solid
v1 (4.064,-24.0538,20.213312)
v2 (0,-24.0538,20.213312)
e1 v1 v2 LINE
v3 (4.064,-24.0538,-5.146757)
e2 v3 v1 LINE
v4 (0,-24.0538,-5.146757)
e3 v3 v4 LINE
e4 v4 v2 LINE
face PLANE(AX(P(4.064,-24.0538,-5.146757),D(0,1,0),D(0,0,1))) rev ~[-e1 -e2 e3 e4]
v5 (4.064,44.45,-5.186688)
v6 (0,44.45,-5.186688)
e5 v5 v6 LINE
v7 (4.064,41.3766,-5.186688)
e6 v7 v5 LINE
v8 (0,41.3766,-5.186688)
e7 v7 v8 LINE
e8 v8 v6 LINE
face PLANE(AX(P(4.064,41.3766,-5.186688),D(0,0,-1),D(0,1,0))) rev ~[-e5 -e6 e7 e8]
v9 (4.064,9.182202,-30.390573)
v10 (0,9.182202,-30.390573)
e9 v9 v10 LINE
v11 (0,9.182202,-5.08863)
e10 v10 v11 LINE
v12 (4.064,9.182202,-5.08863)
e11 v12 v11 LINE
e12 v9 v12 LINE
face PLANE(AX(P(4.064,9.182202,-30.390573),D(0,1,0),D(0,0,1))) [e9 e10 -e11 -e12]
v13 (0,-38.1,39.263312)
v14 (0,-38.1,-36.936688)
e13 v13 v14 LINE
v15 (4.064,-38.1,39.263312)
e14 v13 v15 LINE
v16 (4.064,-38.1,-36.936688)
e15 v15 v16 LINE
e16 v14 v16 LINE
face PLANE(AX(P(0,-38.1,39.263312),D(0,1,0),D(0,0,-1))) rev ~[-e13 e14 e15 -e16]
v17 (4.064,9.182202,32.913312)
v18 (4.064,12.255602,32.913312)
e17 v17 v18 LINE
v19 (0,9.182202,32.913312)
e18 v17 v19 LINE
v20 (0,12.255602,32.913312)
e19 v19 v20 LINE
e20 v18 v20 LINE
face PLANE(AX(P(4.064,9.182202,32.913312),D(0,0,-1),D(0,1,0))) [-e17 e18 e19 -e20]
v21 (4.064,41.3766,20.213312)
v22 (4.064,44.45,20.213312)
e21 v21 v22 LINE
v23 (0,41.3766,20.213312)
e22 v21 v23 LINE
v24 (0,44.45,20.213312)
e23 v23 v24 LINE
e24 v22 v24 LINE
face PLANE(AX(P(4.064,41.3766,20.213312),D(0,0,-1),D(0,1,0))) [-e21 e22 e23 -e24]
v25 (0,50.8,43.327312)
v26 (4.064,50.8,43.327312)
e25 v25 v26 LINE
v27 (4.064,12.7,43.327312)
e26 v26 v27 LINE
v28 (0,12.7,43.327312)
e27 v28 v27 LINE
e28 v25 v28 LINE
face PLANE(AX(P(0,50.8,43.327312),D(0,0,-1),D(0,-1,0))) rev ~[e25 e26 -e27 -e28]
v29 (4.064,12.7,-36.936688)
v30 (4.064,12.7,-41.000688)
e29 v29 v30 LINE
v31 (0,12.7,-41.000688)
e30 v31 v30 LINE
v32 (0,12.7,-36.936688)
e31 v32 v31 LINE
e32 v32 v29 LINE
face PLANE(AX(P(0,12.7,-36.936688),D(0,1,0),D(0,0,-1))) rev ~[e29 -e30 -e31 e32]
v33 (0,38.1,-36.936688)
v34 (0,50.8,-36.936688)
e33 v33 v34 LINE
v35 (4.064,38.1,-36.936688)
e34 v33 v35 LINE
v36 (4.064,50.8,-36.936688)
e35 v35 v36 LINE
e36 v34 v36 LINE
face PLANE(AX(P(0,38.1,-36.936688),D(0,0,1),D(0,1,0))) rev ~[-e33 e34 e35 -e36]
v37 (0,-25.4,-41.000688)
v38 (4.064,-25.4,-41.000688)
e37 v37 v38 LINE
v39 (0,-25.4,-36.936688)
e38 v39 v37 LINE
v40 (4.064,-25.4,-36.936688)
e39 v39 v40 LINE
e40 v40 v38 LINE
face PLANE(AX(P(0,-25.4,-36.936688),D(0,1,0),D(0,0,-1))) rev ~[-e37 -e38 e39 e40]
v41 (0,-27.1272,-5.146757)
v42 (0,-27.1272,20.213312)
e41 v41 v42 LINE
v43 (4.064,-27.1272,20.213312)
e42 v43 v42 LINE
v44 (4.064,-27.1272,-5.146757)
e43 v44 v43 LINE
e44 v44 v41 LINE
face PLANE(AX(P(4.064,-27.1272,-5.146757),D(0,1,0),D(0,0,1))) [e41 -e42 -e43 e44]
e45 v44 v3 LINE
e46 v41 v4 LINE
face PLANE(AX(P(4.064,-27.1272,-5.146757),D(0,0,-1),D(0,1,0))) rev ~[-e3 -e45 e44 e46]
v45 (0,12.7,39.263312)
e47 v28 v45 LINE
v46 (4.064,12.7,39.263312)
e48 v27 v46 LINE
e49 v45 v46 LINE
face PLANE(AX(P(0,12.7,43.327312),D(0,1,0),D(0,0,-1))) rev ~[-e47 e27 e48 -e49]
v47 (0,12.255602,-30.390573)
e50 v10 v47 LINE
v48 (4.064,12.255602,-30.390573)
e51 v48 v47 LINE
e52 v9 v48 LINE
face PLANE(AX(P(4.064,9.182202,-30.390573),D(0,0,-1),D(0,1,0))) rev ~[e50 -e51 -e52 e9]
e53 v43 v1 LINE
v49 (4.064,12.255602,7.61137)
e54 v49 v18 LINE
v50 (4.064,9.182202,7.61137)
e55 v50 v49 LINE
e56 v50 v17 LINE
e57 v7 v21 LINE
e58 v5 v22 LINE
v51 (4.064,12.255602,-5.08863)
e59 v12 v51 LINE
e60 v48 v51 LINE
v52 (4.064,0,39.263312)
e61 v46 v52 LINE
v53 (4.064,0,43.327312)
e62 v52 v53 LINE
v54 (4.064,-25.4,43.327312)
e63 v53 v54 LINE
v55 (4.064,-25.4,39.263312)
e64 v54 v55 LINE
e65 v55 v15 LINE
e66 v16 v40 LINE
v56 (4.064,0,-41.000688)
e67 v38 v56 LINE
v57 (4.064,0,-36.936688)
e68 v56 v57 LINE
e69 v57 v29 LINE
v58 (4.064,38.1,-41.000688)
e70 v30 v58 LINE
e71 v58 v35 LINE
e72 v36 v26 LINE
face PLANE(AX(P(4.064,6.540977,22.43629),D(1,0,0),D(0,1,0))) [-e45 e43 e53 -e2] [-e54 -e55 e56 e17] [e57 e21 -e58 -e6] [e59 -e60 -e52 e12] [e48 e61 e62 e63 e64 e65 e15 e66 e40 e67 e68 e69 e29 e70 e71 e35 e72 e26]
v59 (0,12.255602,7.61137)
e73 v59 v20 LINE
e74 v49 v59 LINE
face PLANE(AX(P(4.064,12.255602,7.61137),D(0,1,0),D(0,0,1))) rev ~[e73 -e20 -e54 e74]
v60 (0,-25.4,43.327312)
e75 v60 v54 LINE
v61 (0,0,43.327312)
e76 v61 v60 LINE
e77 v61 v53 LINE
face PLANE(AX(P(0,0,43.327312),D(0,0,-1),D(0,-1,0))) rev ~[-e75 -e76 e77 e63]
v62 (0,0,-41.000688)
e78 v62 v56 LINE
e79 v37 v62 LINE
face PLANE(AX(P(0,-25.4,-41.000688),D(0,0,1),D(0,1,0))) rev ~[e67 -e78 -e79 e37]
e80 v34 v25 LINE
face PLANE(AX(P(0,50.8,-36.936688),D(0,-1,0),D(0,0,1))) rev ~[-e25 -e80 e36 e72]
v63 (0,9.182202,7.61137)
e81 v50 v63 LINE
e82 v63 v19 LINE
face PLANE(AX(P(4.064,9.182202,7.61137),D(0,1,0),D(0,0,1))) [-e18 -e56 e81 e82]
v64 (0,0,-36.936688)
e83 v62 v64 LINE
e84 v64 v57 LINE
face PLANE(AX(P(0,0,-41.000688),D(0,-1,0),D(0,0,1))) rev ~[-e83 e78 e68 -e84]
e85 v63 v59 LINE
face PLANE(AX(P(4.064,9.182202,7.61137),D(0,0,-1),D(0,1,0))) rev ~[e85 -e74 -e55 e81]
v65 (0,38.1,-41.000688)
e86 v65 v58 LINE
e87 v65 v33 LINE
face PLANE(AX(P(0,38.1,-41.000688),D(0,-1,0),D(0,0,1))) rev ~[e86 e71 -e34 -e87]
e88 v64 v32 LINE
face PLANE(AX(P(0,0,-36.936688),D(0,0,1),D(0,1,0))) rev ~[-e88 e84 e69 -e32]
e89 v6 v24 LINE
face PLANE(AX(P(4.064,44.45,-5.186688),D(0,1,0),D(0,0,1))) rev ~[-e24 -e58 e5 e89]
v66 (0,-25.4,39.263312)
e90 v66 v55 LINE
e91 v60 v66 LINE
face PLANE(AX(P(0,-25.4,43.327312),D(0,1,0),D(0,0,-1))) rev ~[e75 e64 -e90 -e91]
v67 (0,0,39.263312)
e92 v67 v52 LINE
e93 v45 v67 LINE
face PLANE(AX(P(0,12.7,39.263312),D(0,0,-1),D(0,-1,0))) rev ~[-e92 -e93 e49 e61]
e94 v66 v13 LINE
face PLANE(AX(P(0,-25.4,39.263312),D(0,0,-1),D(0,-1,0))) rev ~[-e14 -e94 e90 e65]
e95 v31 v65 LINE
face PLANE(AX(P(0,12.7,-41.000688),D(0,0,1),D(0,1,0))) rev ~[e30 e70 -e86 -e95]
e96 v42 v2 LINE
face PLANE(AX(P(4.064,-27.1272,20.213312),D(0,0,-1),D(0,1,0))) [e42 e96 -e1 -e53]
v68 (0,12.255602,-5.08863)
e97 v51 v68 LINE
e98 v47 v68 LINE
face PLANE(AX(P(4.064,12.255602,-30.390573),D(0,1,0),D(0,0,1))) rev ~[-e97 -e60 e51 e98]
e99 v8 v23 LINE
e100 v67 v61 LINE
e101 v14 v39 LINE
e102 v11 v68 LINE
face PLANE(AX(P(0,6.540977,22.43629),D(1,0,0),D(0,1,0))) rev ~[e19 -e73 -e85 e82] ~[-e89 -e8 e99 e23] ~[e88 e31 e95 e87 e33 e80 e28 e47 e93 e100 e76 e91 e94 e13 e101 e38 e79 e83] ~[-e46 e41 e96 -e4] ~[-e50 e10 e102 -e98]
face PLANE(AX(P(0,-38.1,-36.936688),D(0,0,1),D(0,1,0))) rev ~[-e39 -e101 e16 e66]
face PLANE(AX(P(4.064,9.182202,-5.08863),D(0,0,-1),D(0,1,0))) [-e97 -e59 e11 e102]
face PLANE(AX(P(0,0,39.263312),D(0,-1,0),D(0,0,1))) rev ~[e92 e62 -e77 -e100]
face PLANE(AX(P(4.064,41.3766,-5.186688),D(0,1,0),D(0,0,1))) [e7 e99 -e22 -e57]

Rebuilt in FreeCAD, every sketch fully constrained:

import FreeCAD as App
import Part
import Sketcher
from FreeCAD import Vector
Q = App.Units.Quantity

doc = App.newDocument("Part")
body = doc.addObject("PartDesign::Body", "Body")

sketch1 = body.newObject("Sketcher::SketchObject", "Sketch")
sketch1.AttachmentSupport = (doc.getObject("YZ_Plane"), [""])
sketch1.MapMode = "FlatFace"
sketch1.addGeometry([
    Part.LineSegment(Vector(50.8, 43.327312, 0), Vector(12.7, 43.327312, 0)),
    Part.LineSegment(Vector(12.7, 43.327312, 0), Vector(12.7, 39.263312, 0)),
    Part.LineSegment(Vector(12.7, 39.263312, 0), Vector(0, 39.263312, 0)),
    Part.LineSegment(Vector(0, 39.263312, 0), Vector(0, 43.327312, 0)),
    Part.LineSegment(Vector(0, 43.327312, 0), Vector(-25.4, 43.327312, 0)),
    Part.LineSegment(Vector(-25.4, 43.327312, 0), Vector(-25.4, 39.263312, 0)),
    Part.LineSegment(Vector(-25.4, 39.263312, 0), Vector(-38.1, 39.263312, 0)),
    Part.LineSegment(Vector(-38.1, 39.263312, 0), Vector(-38.1, -36.936688, 0)),
    Part.LineSegment(Vector(-38.1, -36.936688, 0), Vector(-25.4, -36.936688, 0)),
    Part.LineSegment(Vector(-25.4, -36.936688, 0), Vector(-25.4, -41.000688, 0)),
    Part.LineSegment(Vector(-25.4, -41.000688, 0), Vector(0, -41.000688, 0)),
    Part.LineSegment(Vector(0, -41.000688, 0), Vector(0, -36.936688, 0)),
    Part.LineSegment(Vector(0, -36.936688, 0), Vector(12.7, -36.936688, 0)),
    Part.LineSegment(Vector(12.7, -36.936688, 0), Vector(12.7, -41.000688, 0)),
    Part.LineSegment(Vector(12.7, -41.000688, 0), Vector(38.1, -41.000688, 0)),
    Part.LineSegment(Vector(38.1, -41.000688, 0), Vector(38.1, -36.936688, 0)),
    Part.LineSegment(Vector(38.1, -36.936688, 0), Vector(50.8, -36.936688, 0)),
    Part.LineSegment(Vector(50.8, -36.936688, 0), Vector(50.8, 43.327312, 0)),
], False)
sketch1.addConstraint([
    Sketcher.Constraint("Coincident", 0, 2, 1, 1),
    Sketcher.Constraint("Coincident", 1, 2, 2, 1),
    Sketcher.Constraint("Coincident", 2, 2, 3, 1),
    Sketcher.Constraint("Coincident", 3, 2, 4, 1),
    Sketcher.Constraint("Coincident", 4, 2, 5, 1),
    Sketcher.Constraint("Coincident", 5, 2, 6, 1),
    Sketcher.Constraint("Coincident", 6, 2, 7, 1),
    Sketcher.Constraint("Coincident", 7, 2, 8, 1),
    Sketcher.Constraint("Coincident", 8, 2, 9, 1),
    Sketcher.Constraint("Coincident", 9, 2, 10, 1),
    Sketcher.Constraint("Coincident", 10, 2, 11, 1),
    Sketcher.Constraint("Coincident", 11, 2, 12, 1),
    Sketcher.Constraint("Coincident", 12, 2, 13, 1),
    Sketcher.Constraint("Coincident", 13, 2, 14, 1),
    Sketcher.Constraint("Coincident", 14, 2, 15, 1),
    Sketcher.Constraint("Coincident", 15, 2, 16, 1),
    Sketcher.Constraint("Coincident", 16, 2, 17, 1),
    Sketcher.Constraint("Coincident", 17, 2, 0, 1),
    Sketcher.Constraint("Horizontal", 0),
    Sketcher.Constraint("Vertical", 1),
    Sketcher.Constraint("Horizontal", 2),
    Sketcher.Constraint("Vertical", 3),
    Sketcher.Constraint("Horizontal", 4),
    Sketcher.Constraint("Vertical", 5),
    Sketcher.Constraint("Horizontal", 6),
    Sketcher.Constraint("Vertical", 7),
    Sketcher.Constraint("Horizontal", 8),
    Sketcher.Constraint("Vertical", 9),
    Sketcher.Constraint("Horizontal", 10),
    Sketcher.Constraint("Vertical", 11),
    Sketcher.Constraint("Horizontal", 12),
    Sketcher.Constraint("Vertical", 13),
    Sketcher.Constraint("Horizontal", 14),
    Sketcher.Constraint("Vertical", 15),
    Sketcher.Constraint("Horizontal", 16),
    Sketcher.Constraint("Vertical", 17),
    Sketcher.Constraint("Symmetric", 7, 2, 15, 2, -2),
    Sketcher.Constraint("PointOnObject", 2, 2, -2),
    Sketcher.Constraint("PointOnObject", 10, 2, -2),
    Sketcher.Constraint("Horizontal", 0, 2, 3, 2),
    Sketcher.Constraint("Horizontal", 2, 2, 5, 2),
    Sketcher.Constraint("Horizontal", 8, 2, 11, 2),
    Sketcher.Constraint("Horizontal", 10, 2, 13, 2),
    Sketcher.Constraint("Vertical", 5, 2, 8, 2),
    Sketcher.Constraint("Vertical", 1, 2, 12, 2),
    Sketcher.Constraint("Equal", 2, 6),
    Sketcher.Constraint("Equal", 12, 16),
    Sketcher.Constraint("Equal", 5, 9),
    Sketcher.Constraint("DistanceX", 4, 2, 4, 1, Q("1 in")),
    Sketcher.Constraint("DistanceY", 7, 2, 7, 1, Q("3 in")),
    Sketcher.Constraint("DistanceX", 0, 2, 0, 1, Q("1.5 in")),
    Sketcher.Constraint("DistanceY", 1, 2, 1, 1, Q("0.16 in")),
    Sketcher.Constraint("DistanceY", -1, 1, 0, 2, 43.327312),
])
pad1 = body.newObject("PartDesign::Pad", "Pad")
pad1.Profile = sketch1
pad1.Length = Q("0.16 in")

sketch2 = body.newObject("Sketcher::SketchObject", "Sketch001")
sketch2.AttachmentSupport = (doc.getObject("YZ_Plane"), [""])
sketch2.MapMode = "FlatFace"
sketch2.AttachmentOffset = App.Placement(Vector(0, 0, 0.16 * 25.4), App.Rotation())
sketch2.addGeometry([
    Part.LineSegment(Vector(-27.1272, 20.213312, 0), Vector(-27.1272, -5.146757, 0)),
    Part.LineSegment(Vector(-27.1272, -5.146757, 0), Vector(-24.0538, -5.146757, 0)),
    Part.LineSegment(Vector(-24.0538, -5.146757, 0), Vector(-24.0538, 20.213312, 0)),
    Part.LineSegment(Vector(-24.0538, 20.213312, 0), Vector(-27.1272, 20.213312, 0)),
    Part.LineSegment(Vector(9.182202, 32.913312, 0), Vector(9.182202, 7.61137, 0)),
    Part.LineSegment(Vector(9.182202, 7.61137, 0), Vector(12.255602, 7.61137, 0)),
    Part.LineSegment(Vector(12.255602, 7.61137, 0), Vector(12.255602, 32.913312, 0)),
    Part.LineSegment(Vector(12.255602, 32.913312, 0), Vector(9.182202, 32.913312, 0)),
    Part.LineSegment(Vector(9.182202, -5.08863, 0), Vector(9.182202, -30.390573, 0)),
    Part.LineSegment(Vector(9.182202, -30.390573, 0), Vector(12.255602, -30.390573, 0)),
    Part.LineSegment(Vector(12.255602, -30.390573, 0), Vector(12.255602, -5.08863, 0)),
    Part.LineSegment(Vector(12.255602, -5.08863, 0), Vector(9.182202, -5.08863, 0)),
    Part.LineSegment(Vector(41.3766, 20.213312, 0), Vector(41.3766, -5.186688, 0)),
    Part.LineSegment(Vector(41.3766, -5.186688, 0), Vector(44.45, -5.186688, 0)),
    Part.LineSegment(Vector(44.45, -5.186688, 0), Vector(44.45, 20.213312, 0)),
    Part.LineSegment(Vector(44.45, 20.213312, 0), Vector(41.3766, 20.213312, 0)),
], False)
sketch2.addConstraint([
    Sketcher.Constraint("Coincident", 0, 2, 1, 1),
    Sketcher.Constraint("Coincident", 1, 2, 2, 1),
    Sketcher.Constraint("Coincident", 2, 2, 3, 1),
    Sketcher.Constraint("Coincident", 3, 2, 0, 1),
    Sketcher.Constraint("Coincident", 4, 2, 5, 1),
    Sketcher.Constraint("Coincident", 5, 2, 6, 1),
    Sketcher.Constraint("Coincident", 6, 2, 7, 1),
    Sketcher.Constraint("Coincident", 7, 2, 4, 1),
    Sketcher.Constraint("Coincident", 8, 2, 9, 1),
    Sketcher.Constraint("Coincident", 9, 2, 10, 1),
    Sketcher.Constraint("Coincident", 10, 2, 11, 1),
    Sketcher.Constraint("Coincident", 11, 2, 8, 1),
    Sketcher.Constraint("Coincident", 12, 2, 13, 1),
    Sketcher.Constraint("Coincident", 13, 2, 14, 1),
    Sketcher.Constraint("Coincident", 14, 2, 15, 1),
    Sketcher.Constraint("Coincident", 15, 2, 12, 1),
    Sketcher.Constraint("Vertical", 0),
    Sketcher.Constraint("Horizontal", 1),
    Sketcher.Constraint("Vertical", 2),
    Sketcher.Constraint("Horizontal", 3),
    Sketcher.Constraint("Vertical", 4),
    Sketcher.Constraint("Horizontal", 5),
    Sketcher.Constraint("Vertical", 6),
    Sketcher.Constraint("Horizontal", 7),
    Sketcher.Constraint("Vertical", 8),
    Sketcher.Constraint("Horizontal", 9),
    Sketcher.Constraint("Vertical", 10),
    Sketcher.Constraint("Horizontal", 11),
    Sketcher.Constraint("Vertical", 12),
    Sketcher.Constraint("Horizontal", 13),
    Sketcher.Constraint("Vertical", 14),
    Sketcher.Constraint("Horizontal", 15),
    Sketcher.Constraint("Horizontal", 3, 2, 14, 2),
    Sketcher.Constraint("Vertical", 7, 2, 8, 2),
    Sketcher.Constraint("Vertical", 6, 2, 9, 2),
    Sketcher.Constraint("Equal", 3, 5),
    Sketcher.Constraint("Equal", 11, 13),
    Sketcher.Constraint("Equal", 6, 8),
    Sketcher.Constraint("DistanceY", 12, 2, 12, 1, Q("1 in")),
    Sketcher.Constraint("DistanceY", 2, 2, 6, 2, Q("0.5 in")),
    Sketcher.Constraint("DistanceY", 10, 2, 5, 2, Q("0.5 in")),
    Sketcher.Constraint("DistanceX", 1, 1, 1, 2, Q("0.121 in")),
    Sketcher.Constraint("DistanceX", -1, 1, 13, 2, Q("1.75 in")),
    Sketcher.Constraint("DistanceX", 0, 2, -1, 1, Q("1.068 in")),
    Sketcher.Constraint("DistanceY", 0, 2, 0, 1, 25.360069),
    Sketcher.Constraint("DistanceX", -1, 1, 4, 2, 9.182202),
    Sketcher.Constraint("DistanceY", 4, 2, 4, 1, 25.301943),
    Sketcher.Constraint("DistanceY", -1, 1, 4, 2, 7.61137),
])
pocket1 = body.newObject("PartDesign::Pocket", "Pocket")
pocket1.Profile = sketch2
pocket1.Length = Q("1 in")

doc.recompute()
